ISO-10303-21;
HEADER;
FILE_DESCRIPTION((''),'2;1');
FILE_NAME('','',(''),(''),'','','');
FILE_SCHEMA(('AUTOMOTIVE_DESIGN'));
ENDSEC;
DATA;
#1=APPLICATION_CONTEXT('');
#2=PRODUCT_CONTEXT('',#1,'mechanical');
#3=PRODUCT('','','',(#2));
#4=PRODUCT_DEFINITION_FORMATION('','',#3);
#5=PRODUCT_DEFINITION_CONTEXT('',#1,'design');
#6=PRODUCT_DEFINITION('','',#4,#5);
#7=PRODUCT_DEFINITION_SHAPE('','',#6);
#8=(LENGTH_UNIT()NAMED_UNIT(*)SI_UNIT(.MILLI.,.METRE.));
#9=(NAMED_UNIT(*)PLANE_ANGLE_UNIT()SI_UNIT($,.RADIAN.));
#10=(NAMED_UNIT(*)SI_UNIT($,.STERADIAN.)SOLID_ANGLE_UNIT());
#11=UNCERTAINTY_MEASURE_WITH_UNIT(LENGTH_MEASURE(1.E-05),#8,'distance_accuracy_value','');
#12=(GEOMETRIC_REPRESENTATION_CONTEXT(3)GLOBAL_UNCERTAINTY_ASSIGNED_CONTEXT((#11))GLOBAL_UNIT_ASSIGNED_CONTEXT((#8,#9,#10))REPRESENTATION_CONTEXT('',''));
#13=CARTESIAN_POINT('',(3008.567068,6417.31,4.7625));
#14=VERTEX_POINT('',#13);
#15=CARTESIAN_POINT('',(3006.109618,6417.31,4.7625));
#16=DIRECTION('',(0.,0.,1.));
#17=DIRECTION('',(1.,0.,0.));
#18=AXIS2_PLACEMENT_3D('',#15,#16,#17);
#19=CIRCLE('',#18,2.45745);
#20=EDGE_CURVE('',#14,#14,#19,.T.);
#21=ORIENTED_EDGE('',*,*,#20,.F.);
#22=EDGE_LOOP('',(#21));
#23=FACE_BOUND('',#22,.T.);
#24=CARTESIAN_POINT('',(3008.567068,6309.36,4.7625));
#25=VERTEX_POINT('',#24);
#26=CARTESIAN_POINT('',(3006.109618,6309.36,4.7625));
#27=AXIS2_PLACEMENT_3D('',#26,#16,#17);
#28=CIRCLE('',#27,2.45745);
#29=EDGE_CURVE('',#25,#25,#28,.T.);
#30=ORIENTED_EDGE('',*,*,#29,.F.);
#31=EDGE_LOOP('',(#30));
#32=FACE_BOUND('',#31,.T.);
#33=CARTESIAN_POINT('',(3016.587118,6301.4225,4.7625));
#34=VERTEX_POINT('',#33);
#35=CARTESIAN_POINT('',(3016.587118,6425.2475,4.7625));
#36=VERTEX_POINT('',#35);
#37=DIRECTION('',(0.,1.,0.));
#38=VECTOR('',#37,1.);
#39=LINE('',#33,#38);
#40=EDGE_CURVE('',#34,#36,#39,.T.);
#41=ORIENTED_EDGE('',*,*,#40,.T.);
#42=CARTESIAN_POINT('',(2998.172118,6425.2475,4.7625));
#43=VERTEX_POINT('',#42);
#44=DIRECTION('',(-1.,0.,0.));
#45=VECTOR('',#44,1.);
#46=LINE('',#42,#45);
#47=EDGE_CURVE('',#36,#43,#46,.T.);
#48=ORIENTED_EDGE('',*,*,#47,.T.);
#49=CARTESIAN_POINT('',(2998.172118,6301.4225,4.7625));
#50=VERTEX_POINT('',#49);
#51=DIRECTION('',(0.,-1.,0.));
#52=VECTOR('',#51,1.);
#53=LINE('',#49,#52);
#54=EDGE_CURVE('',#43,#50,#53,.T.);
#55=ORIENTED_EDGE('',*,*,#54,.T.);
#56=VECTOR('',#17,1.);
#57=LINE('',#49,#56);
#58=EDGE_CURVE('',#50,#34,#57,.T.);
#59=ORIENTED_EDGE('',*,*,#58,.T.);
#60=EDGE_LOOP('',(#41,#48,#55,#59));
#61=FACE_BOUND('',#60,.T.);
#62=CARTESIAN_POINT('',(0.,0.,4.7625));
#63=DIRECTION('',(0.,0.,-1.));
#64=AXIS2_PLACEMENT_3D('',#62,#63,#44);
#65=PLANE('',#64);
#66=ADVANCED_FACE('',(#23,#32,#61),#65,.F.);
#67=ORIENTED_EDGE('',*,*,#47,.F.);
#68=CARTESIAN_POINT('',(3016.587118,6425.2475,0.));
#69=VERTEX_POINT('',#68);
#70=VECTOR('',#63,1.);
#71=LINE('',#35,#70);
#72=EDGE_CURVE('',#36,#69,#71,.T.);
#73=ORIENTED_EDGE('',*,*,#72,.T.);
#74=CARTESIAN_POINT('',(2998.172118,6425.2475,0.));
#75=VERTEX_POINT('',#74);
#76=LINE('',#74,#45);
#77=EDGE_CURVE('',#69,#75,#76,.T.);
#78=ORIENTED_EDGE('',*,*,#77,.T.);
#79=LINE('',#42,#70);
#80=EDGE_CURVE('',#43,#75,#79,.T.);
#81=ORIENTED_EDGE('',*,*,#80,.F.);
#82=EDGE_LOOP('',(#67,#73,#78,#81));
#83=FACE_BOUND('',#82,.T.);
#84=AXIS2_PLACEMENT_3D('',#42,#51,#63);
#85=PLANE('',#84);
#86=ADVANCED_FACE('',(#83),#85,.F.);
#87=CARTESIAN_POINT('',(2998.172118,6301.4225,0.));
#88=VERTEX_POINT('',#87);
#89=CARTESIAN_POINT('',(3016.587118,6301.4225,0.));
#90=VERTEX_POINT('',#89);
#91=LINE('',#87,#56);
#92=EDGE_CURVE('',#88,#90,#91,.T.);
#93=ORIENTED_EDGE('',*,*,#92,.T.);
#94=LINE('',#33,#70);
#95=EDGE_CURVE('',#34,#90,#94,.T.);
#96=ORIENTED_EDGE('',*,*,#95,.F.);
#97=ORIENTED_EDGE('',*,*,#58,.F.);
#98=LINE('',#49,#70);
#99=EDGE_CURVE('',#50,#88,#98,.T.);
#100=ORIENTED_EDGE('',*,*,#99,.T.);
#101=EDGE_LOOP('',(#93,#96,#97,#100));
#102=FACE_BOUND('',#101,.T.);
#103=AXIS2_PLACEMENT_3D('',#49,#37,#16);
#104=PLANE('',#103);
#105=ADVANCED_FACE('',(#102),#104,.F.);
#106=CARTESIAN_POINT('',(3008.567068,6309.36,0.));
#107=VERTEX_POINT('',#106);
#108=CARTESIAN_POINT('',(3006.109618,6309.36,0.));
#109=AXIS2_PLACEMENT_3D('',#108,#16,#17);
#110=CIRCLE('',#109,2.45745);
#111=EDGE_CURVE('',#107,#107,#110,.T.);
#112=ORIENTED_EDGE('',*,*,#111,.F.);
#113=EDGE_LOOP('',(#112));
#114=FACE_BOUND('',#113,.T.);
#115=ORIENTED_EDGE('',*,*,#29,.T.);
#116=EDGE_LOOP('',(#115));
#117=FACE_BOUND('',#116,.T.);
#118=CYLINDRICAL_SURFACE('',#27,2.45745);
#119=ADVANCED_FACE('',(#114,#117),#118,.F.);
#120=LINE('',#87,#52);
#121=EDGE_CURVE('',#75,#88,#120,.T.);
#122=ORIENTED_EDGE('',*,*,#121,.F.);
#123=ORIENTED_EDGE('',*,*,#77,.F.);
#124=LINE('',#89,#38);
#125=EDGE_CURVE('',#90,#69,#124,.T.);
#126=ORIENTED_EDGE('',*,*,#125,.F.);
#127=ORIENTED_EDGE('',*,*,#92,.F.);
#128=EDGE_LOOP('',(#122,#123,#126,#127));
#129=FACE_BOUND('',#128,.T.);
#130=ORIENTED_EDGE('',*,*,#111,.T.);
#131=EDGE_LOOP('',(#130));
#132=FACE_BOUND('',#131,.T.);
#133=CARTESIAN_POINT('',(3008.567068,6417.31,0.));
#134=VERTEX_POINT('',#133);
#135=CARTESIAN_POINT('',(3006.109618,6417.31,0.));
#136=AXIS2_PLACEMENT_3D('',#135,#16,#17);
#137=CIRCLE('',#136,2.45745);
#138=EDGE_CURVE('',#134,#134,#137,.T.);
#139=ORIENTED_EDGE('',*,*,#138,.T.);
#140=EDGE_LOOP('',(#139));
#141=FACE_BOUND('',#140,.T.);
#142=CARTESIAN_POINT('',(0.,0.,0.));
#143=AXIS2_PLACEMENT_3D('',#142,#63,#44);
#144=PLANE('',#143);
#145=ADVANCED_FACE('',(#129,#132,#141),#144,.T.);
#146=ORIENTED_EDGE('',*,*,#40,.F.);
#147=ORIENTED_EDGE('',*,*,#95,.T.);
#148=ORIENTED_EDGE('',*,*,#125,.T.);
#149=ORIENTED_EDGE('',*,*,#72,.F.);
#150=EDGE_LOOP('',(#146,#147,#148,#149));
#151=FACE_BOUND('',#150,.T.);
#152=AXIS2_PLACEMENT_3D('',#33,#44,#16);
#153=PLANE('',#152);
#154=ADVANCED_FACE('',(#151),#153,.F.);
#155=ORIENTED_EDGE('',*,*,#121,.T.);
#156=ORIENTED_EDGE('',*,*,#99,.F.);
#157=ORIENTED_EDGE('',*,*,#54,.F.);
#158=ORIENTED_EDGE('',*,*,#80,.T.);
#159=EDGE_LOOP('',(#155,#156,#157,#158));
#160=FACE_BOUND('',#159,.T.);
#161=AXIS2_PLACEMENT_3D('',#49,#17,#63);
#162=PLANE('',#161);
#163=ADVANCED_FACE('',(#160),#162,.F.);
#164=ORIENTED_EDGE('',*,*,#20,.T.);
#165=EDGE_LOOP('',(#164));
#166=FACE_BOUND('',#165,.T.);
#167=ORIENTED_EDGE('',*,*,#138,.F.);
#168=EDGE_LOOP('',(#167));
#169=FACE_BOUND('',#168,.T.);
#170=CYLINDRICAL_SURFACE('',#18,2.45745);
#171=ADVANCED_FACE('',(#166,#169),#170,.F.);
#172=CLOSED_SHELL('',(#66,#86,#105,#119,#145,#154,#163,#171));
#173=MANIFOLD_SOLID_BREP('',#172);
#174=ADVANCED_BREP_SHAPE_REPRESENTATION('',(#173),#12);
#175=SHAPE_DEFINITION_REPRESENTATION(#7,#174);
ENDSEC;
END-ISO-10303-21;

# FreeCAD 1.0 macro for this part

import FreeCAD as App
import Part
import Sketcher
from FreeCAD import Vector
Q = App.Units.Quantity


def add_polygon(sketch, points):
    """Adds a closed chain of lines whose ends are joined by coincident constraints."""
    first, n = sketch.GeometryCount, len(points)
    for a, b in zip(points, points[1:] + points[:1]):
        sketch.addGeometry(Part.LineSegment(App.Vector(*a, 0), App.Vector(*b, 0)), False)
    for i in range(n):
        sketch.addConstraint(Sketcher.Constraint("Coincident", first + i, 2, first + (i + 1) % n, 1))

doc = App.newDocument("Part")
body = doc.addObject("PartDesign::Body", "Body")

sketch1 = doc.addObject("Sketcher::SketchObject", "Sketch")
body.addObject(sketch1)
sketch1.AttachmentSupport = (doc.XY_Plane, [""])
sketch1.MapMode = "FlatFace"
add_polygon(sketch1, [(2998, 6425), (2998, 6301), (3017, 6301), (3017, 6425)])
sketch1.addConstraint([
    Sketcher.Constraint("Vertical", 0),
    Sketcher.Constraint("Horizontal", 1),
    Sketcher.Constraint("Vertical", 2),
    Sketcher.Constraint("Horizontal", 3),
    Sketcher.Constraint("DistanceX", 1, 1, 1, 2, Q("0.725 in")),
    Sketcher.Constraint("DistanceY", 0, 2, 0, 1, Q("4.875 in")),
    Sketcher.Constraint("DistanceY", -1, 1, 0, 2, Q("248.0875 in")),
    Sketcher.Constraint("DistanceX", -1, 1, 0, 2, Q("2998.172118 mm")),
])
pad1 = doc.addObject("PartDesign::Pad", "Pad")
body.addObject(pad1)
pad1.Profile = sketch1
pad1.Length = Q("0.1875 in")

sketch2 = doc.addObject("Sketcher::SketchObject", "Sketch001")
body.addObject(sketch2)
sketch2.AttachmentSupport = (doc.XY_Plane, [""])
sketch2.MapMode = "FlatFace"
sketch2.AttachmentOffset = App.Placement(Vector(0, 0, 0.1875 * 25.4), App.Rotation())
sketch2.addGeometry([
    Part.Circle(Vector(3006.1, 6417.3, 0), Vector(0, 0, 1), 2.5),
    Part.Circle(Vector(3006.1, 6309.4, 0), Vector(0, 0, 1), 2.5),
], False)
sketch2.addConstraint([
    Sketcher.Constraint("Equal", 0, 1),
    Sketcher.Constraint("Vertical", 0, 3, 1, 3),
    Sketcher.Constraint("Diameter", 0, Q("0.1935 in")),
    Sketcher.Constraint("DistanceY", -1, 1, 1, 3, Q("248.4 in")),
    Sketcher.Constraint("DistanceY", -1, 1, 0, 3, Q("252.65 in")),
    Sketcher.Constraint("DistanceX", -1, 1, 0, 3, Q("3006.109618 mm")),
])
doc.recompute()
hole = doc.addObject("PartDesign::Hole", "Hole")
body.addObject(hole)
hole.Profile = sketch2
hole.ThreadType = "None"
hole.Diameter = Q("0.1935 in")
hole.DepthType = "ThroughAll"

doc.recompute()
